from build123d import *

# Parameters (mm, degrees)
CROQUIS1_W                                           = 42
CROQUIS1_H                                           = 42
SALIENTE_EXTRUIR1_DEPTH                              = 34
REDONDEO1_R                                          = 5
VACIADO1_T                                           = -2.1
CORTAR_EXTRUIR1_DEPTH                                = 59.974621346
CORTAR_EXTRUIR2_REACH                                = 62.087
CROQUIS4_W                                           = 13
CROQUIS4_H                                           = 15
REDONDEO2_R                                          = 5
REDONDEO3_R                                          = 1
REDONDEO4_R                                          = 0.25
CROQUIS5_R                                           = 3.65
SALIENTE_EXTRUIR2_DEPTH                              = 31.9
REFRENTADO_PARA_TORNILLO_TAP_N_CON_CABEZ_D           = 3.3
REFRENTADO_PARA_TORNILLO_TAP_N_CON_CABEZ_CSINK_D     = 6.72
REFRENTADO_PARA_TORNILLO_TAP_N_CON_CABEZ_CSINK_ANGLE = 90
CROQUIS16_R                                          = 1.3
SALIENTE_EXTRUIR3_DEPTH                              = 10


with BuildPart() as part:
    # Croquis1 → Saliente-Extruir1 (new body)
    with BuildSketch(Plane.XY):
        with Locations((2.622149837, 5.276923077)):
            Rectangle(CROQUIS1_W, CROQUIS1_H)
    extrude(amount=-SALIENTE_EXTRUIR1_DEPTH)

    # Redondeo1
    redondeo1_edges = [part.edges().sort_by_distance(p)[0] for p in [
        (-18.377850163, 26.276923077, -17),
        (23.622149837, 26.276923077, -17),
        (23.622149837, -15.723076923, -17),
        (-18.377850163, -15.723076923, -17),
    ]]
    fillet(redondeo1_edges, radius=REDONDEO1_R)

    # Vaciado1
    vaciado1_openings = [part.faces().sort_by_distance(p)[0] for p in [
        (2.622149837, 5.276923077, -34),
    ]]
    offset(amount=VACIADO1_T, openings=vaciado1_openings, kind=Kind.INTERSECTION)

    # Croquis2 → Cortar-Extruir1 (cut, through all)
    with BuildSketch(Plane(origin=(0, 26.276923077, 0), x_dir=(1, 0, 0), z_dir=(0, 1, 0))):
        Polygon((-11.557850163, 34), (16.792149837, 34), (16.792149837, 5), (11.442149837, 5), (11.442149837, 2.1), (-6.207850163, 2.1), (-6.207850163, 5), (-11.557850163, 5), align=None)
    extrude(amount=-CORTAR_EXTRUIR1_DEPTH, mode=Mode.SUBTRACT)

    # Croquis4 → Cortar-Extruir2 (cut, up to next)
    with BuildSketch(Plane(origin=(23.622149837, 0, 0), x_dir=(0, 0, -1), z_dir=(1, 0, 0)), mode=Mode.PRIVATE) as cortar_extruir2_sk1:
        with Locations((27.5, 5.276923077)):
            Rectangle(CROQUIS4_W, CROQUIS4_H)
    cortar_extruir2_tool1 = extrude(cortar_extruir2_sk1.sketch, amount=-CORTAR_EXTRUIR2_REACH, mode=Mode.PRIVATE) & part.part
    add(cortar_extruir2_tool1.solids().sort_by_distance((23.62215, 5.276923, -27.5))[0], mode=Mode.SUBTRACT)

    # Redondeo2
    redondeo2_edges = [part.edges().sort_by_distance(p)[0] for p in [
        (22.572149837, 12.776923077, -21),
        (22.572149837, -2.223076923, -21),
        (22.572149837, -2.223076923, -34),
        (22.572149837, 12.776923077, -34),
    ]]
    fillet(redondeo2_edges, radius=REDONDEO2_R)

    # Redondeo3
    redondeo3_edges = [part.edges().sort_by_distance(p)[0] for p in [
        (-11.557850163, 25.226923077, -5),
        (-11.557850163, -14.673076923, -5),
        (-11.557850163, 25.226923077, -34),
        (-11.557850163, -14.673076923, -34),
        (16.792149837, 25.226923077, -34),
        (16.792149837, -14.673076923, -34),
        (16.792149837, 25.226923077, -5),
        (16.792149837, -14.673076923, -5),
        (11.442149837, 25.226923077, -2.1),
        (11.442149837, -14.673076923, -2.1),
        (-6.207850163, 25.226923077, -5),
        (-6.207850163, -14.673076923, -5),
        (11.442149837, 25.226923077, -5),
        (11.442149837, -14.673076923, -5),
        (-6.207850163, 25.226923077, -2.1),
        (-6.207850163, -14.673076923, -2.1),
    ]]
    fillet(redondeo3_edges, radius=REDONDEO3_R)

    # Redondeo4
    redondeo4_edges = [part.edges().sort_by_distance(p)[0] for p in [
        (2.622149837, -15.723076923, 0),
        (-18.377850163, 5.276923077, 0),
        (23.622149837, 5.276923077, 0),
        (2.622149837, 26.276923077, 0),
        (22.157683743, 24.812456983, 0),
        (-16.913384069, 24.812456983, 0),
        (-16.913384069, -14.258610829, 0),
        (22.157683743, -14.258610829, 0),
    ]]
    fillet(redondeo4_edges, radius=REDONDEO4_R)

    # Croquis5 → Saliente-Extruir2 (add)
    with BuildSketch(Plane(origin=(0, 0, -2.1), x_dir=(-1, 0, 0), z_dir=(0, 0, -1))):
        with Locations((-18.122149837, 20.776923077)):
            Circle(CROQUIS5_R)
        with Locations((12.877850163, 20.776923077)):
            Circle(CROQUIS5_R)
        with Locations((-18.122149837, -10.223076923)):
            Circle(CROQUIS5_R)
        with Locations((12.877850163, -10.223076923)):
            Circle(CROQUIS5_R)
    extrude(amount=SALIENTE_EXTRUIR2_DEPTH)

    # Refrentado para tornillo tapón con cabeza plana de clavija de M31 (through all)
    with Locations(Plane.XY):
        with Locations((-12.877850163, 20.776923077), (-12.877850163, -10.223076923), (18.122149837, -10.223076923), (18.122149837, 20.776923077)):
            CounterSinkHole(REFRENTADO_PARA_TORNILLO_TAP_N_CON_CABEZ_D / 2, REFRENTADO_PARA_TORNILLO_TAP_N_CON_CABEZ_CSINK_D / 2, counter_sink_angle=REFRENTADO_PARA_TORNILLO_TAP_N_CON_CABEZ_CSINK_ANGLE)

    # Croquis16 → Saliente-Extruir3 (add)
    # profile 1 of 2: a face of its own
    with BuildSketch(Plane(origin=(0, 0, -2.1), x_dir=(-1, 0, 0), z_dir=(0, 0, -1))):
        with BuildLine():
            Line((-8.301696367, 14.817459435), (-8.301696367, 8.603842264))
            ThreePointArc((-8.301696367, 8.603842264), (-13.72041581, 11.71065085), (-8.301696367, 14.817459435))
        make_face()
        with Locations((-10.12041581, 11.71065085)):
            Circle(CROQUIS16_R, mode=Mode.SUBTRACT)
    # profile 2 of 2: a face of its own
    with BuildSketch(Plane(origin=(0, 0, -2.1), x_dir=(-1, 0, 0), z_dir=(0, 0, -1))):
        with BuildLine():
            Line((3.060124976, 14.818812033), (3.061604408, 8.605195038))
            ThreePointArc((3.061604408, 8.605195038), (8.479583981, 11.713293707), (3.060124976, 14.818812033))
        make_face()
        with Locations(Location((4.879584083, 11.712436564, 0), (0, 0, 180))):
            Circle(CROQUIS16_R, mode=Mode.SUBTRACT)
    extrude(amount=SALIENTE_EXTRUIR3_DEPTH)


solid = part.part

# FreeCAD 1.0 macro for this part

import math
import FreeCAD as App
import Part
import Sketcher

V = App.Vector


def edges_at(feature, points):
    """Names of the edges that pass closest to the given points."""
    edges = feature.Shape.Edges
    near = lambda p: min(range(len(edges)), key=lambda i: edges[i].distToShape(Part.Vertex(*p))[0])
    return sorted({f"Edge{near(p) + 1}" for p in points})


def faces_at(feature, points):
    """Names of the faces that lie closest to the given points."""
    faces = feature.Shape.Faces
    near = lambda p: min(range(len(faces)), key=lambda i: faces[i].distToShape(Part.Vertex(*p))[0])
    return sorted({f"Face{near(p) + 1}" for p in points})


def add_polygon(sketch, points):
    """Adds a closed chain of lines whose ends are joined by coincident constraints."""
    first, n = sketch.GeometryCount, len(points)
    for a, b in zip(points, points[1:] + points[:1]):
        sketch.addGeometry(Part.LineSegment(App.Vector(*a, 0), App.Vector(*b, 0)), False)
    for i in range(n):
        sketch.addConstraint(Sketcher.Constraint("Coincident", first + i, 2, first + (i + 1) % n, 1))

doc = App.newDocument("Part")
body = doc.addObject("PartDesign::Body", "Body")

# Sketch on XY plane
sketch1 = body.newObject("Sketcher::SketchObject", "Sketch")
sketch1.AttachmentSupport = (doc.getObject("XY_Plane"), [""])
sketch1.MapMode = "FlatFace"
add_polygon(sketch1, [(-18.37785, 26.276923), (-18.37785, -15.723077), (23.62215, -15.723077), (23.62215, 26.276923)])  # lines 0-3
sketch1.addConstraint(Sketcher.Constraint("Vertical", 0))
sketch1.addConstraint(Sketcher.Constraint("Horizontal", 1))
sketch1.addConstraint(Sketcher.Constraint("Vertical", 2))
sketch1.addConstraint(Sketcher.Constraint("Horizontal", 3))
sketch1.addConstraint(Sketcher.Constraint("Equal", 3, 0))
sketch1.addConstraint(Sketcher.Constraint("DistanceX", 1, 1, 1, 2, 42.0))
sketch1.addConstraint(Sketcher.Constraint("DistanceX", 0, 2, -1, 1, 18.37785))
sketch1.addConstraint(Sketcher.Constraint("DistanceY", 0, 2, -1, 1, 15.723077))
pad1 = body.newObject("PartDesign::Pad", "Pad")
pad1.Profile = sketch1
pad1.Length = 34
pad1.Reversed = True
doc.recompute()

fillet = body.newObject("PartDesign::Fillet", "Fillet")
fillet.Base = (pad1, edges_at(pad1, [
    (-18.378, 26.277, -17),
    (23.622, 26.277, -17),
    (23.622, -15.723, -17),
    (-18.378, -15.723, -17),
]))
fillet.Radius = 5
doc.recompute()

thickness = body.newObject("PartDesign::Thickness", "Thickness")
thickness.Base = (fillet, faces_at(fillet, [(2.622, 5.277, -34)]))
thickness.Value = 2.1
thickness.Reversed = True
thickness.Join = "Intersection"

# Sketch on XZ plane
sketch2 = body.newObject("Sketcher::SketchObject", "Sketch001")
sketch2.AttachmentSupport = (doc.getObject("XZ_Plane"), [""])
sketch2.MapMode = "FlatFace"
sketch2.AttachmentOffset = App.Placement(V(0, 0, -26.276923), App.Rotation())
add_polygon(sketch2, [(16.79215, -34), (-11.55785, -34), (-11.55785, -5), (-6.20785, -5), (-6.20785, -2.1), (11.44215, -2.1), (11.44215, -5), (16.79215, -5)])  # lines 0-7
sketch2.addConstraint(Sketcher.Constraint("Horizontal", 0))
sketch2.addConstraint(Sketcher.Constraint("Vertical", 1))
sketch2.addConstraint(Sketcher.Constraint("Horizontal", 2))
sketch2.addConstraint(Sketcher.Constraint("Vertical", 3))
sketch2.addConstraint(Sketcher.Constraint("Horizontal", 4))
sketch2.addConstraint(Sketcher.Constraint("Vertical", 5))
sketch2.addConstraint(Sketcher.Constraint("Horizontal", 6))
sketch2.addConstraint(Sketcher.Constraint("Vertical", 7))
sketch2.addConstraint(Sketcher.Constraint("Horizontal", 2, 2, 5, 2))
sketch2.addConstraint(Sketcher.Constraint("Equal", 2, 6))
sketch2.addConstraint(Sketcher.Constraint("DistanceY", 1, 1, 1, 2, 29.0))
sketch2.addConstraint(Sketcher.Constraint("DistanceY", 3, 1, 3, 2, 2.9))
sketch2.addConstraint(Sketcher.Constraint("DistanceY", 0, 2, -1, 1, 34.0))
sketch2.addConstraint(Sketcher.Constraint("DistanceX", 1, 2, 4, 2, 23.0))
sketch2.addConstraint(Sketcher.Constraint("DistanceX", 0, 2, 0, 1, 28.35))
sketch2.addConstraint(Sketcher.Constraint("DistanceX", 0, 2, -1, 1, 11.55785))
pocket1 = body.newObject("PartDesign::Pocket", "Pocket")
pocket1.Profile = sketch2
pocket1.Type = "ThroughAll"
pocket1.Reversed = True

# Sketch on YZ plane
sketch3 = body.newObject("Sketcher::SketchObject", "Sketch002")
sketch3.AttachmentSupport = (doc.getObject("YZ_Plane"), [""])
sketch3.MapMode = "FlatFace"
sketch3.AttachmentOffset = App.Placement(V(0, 0, 23.62215), App.Rotation())
add_polygon(sketch3, [(12.776923, -21), (-2.223077, -21), (-2.223077, -34), (12.776923, -34)])  # lines 0-3
sketch3.addConstraint(Sketcher.Constraint("Horizontal", 0))
sketch3.addConstraint(Sketcher.Constraint("Vertical", 1))
sketch3.addConstraint(Sketcher.Constraint("Horizontal", 2))
sketch3.addConstraint(Sketcher.Constraint("Vertical", 3))
sketch3.addConstraint(Sketcher.Constraint("DistanceX", 0, 2, 0, 1, 15.0))
sketch3.addConstraint(Sketcher.Constraint("DistanceY", 1, 2, 1, 1, 13.0))
sketch3.addConstraint(Sketcher.Constraint("DistanceY", 0, 2, -1, 1, 21.0))
sketch3.addConstraint(Sketcher.Constraint("DistanceX", 0, 2, -1, 1, 2.223077))
pocket2 = body.newObject("PartDesign::Pocket", "Pocket001")
pocket2.Profile = sketch3
pocket2.Type = "UpToFirst"
doc.recompute()

fillet2 = body.newObject("PartDesign::Fillet", "Fillet001")
fillet2.Base = (pocket2, edges_at(pocket2, [
    (22.572, 12.777, -21),
    (22.572, -2.223, -21),
    (22.572, -2.223, -34),
    (22.572, 12.777, -34),
]))
fillet2.Radius = 5
doc.recompute()

fillet3 = body.newObject("PartDesign::Fillet", "Fillet002")
fillet3.Base = (fillet2, edges_at(fillet2, [
    (-11.558, 25.227, -5),
    (-11.558, -14.673, -5),
    (-11.558, 25.227, -34),
    (-11.558, -14.673, -34),
    (16.792, 25.227, -34),
    (16.792, -14.673, -34),
    (16.792, 25.227, -5),
    (16.792, -14.673, -5),
    (11.442, 25.227, -2.1),
    (11.442, -14.673, -2.1),
    (-6.208, 25.227, -5),
    (-6.208, -14.673, -5),
    (11.442, 25.227, -5),
    (11.442, -14.673, -5),
    (-6.208, 25.227, -2.1),
    (-6.208, -14.673, -2.1),
]))
fillet3.Radius = 1
doc.recompute()

fillet4 = body.newObject("PartDesign::Fillet", "Fillet003")
fillet4.Base = (fillet3, edges_at(fillet3, [
    (2.622, -15.723, 0),
    (-18.378, 5.277, 0),
    (23.622, 5.277, 0),
    (2.622, 26.277, 0),
    (22.158, 24.812, 0),
    (-16.913, 24.812, 0),
    (-16.913, -14.259, 0),
    (22.158, -14.259, 0),
]))
fillet4.Radius = 0.25

# Sketch on XY plane
sketch4 = body.newObject("Sketcher::SketchObject", "Sketch003")
sketch4.AttachmentSupport = (doc.getObject("XY_Plane"), [""])
sketch4.MapMode = "FlatFace"
sketch4.AttachmentOffset = App.Placement(V(0, 0, -2.1), App.Rotation())
sketch4.addGeometry(Part.Circle(V(18.12215, 20.776923, 0), V(0, 0, 1), 3.65), False)
sketch4.addGeometry(Part.Circle(V(-12.87785, 20.776923, 0), V(0, 0, 1), 3.65), False)
sketch4.addGeometry(Part.Circle(V(18.12215, -10.223077, 0), V(0, 0, 1), 3.65), False)
sketch4.addGeometry(Part.Circle(V(-12.87785, -10.223077, 0), V(0, 0, 1), 3.65), False)
sketch4.addConstraint(Sketcher.Constraint("Equal", 0, 1))
sketch4.addConstraint(Sketcher.Constraint("Equal", 1, 2))
sketch4.addConstraint(Sketcher.Constraint("Equal", 2, 3))
sketch4.addConstraint(Sketcher.Constraint("Horizontal", 0, 3, 1, 3))
sketch4.addConstraint(Sketcher.Constraint("Horizontal", 2, 3, 3, 3))
sketch4.addConstraint(Sketcher.Constraint("Vertical", 0, 3, 2, 3))
sketch4.addConstraint(Sketcher.Constraint("Vertical", 1, 3, 3, 3))
sketch4.addConstraint(Sketcher.Constraint("Diameter", 0, 7.3))
sketch4.addConstraint(Sketcher.Constraint("DistanceX", 1, 3, 0, 3, 31.0))
sketch4.addConstraint(Sketcher.Constraint("DistanceY", 2, 3, 0, 3, 31.0))
sketch4.addConstraint(Sketcher.Constraint("DistanceX", -1, 1, 0, 3, 18.12215))
sketch4.addConstraint(Sketcher.Constraint("DistanceY", -1, 1, 0, 3, 20.776923))
pad2 = body.newObject("PartDesign::Pad", "Pad001")
pad2.Profile = sketch4
pad2.Length = 31.9
pad2.Reversed = True

# Sketch on XY plane
sketch5 = body.newObject("Sketcher::SketchObject", "Sketch004")
sketch5.AttachmentSupport = (doc.getObject("XY_Plane"), [""])
sketch5.MapMode = "FlatFace"
sketch5.addGeometry(Part.Circle(V(-12.87785, 20.776923, 0), V(0, 0, 1), 1.65), False)
sketch5.addGeometry(Part.Circle(V(-12.87785, -10.223077, 0), V(0, 0, 1), 1.65), False)
sketch5.addGeometry(Part.Circle(V(18.12215, -10.223077, 0), V(0, 0, 1), 1.65), False)
sketch5.addGeometry(Part.Circle(V(18.12215, 20.776923, 0), V(0, 0, 1), 1.65), False)
sketch5.addConstraint(Sketcher.Constraint("Equal", 0, 1))
sketch5.addConstraint(Sketcher.Constraint("Equal", 1, 2))
sketch5.addConstraint(Sketcher.Constraint("Equal", 2, 3))
sketch5.addConstraint(Sketcher.Constraint("Horizontal", 1, 3, 2, 3))
sketch5.addConstraint(Sketcher.Constraint("Horizontal", 0, 3, 3, 3))
sketch5.addConstraint(Sketcher.Constraint("Vertical", 0, 3, 1, 3))
sketch5.addConstraint(Sketcher.Constraint("Vertical", 2, 3, 3, 3))
sketch5.addConstraint(Sketcher.Constraint("Diameter", 0, 3.3))
sketch5.addConstraint(Sketcher.Constraint("DistanceY", 1, 3, 0, 3, 31.0))
sketch5.addConstraint(Sketcher.Constraint("DistanceX", 1, 3, 2, 3, 31.0))
sketch5.addConstraint(Sketcher.Constraint("DistanceX", 0, 3, -1, 1, 12.87785))
sketch5.addConstraint(Sketcher.Constraint("DistanceY", -1, 1, 0, 3, 20.776923))
doc.recompute()
hole = body.newObject("PartDesign::Hole", "Hole")
hole.Profile = sketch5
hole.ThreadType = "None"
hole.Diameter = 3.3
hole.DepthType = "ThroughAll"
hole.HoleCutType = "Countersink"
hole.HoleCutDiameter = 6.72
hole.HoleCutCountersinkAngle = 90

# Sketch on XY plane
sketch6 = body.newObject("Sketcher::SketchObject", "Sketch005")
sketch6.AttachmentSupport = (doc.getObject("XY_Plane"), [""])
sketch6.MapMode = "FlatFace"
sketch6.AttachmentOffset = App.Placement(V(0, 0, -2.1), App.Rotation())
sketch6.addGeometry(Part.LineSegment(V(8.301696, 8.603842, 0), V(8.301696, 14.817459, 0)), False)
sketch6.addGeometry(Part.ArcOfCircle(Part.Circle(V(10.120416, 11.710651, 0), V(0, 0, 1), 3.6), math.radians(-120.344619), math.radians(120.344619)), False)
sketch6.addGeometry(Part.Circle(V(10.120416, 11.710651, 0), V(0, 0, 1), 1.3), False)
sketch6.addGeometry(Part.LineSegment(V(-3.060125, 14.818812, 0), V(-3.061604, 8.605195, 0)), False)
sketch6.addGeometry(Part.ArcOfCircle(Part.Circle(V(-4.879584, 11.712437, 0), V(0, 0, 1), 3.6), math.radians(59.641739), math.radians(300.330978)), False)
sketch6.addGeometry(Part.Circle(V(-4.879584, 11.712437, 0), V(0, 0, 1), 1.3), False)
sketch6.addConstraint(Sketcher.Constraint("Coincident", 0, 1, 1, 1))
sketch6.addConstraint(Sketcher.Constraint("Coincident", 1, 2, 0, 2))
sketch6.addConstraint(Sketcher.Constraint("Coincident", 3, 1, 4, 1))
sketch6.addConstraint(Sketcher.Constraint("Coincident", 4, 2, 3, 2))
sketch6.addConstraint(Sketcher.Constraint("Vertical", 0))
sketch6.addConstraint(Sketcher.Constraint("Coincident", 2, 3, 1, 3))
sketch6.addConstraint(Sketcher.Constraint("Coincident", 5, 3, 4, 3))
sketch6.addConstraint(Sketcher.Constraint("Equal", 1, 4))
sketch6.addConstraint(Sketcher.Constraint("Equal", 2, 5))
sketch6.addConstraint(Sketcher.Constraint("Diameter", 2, 2.6))
sketch6.addConstraint(Sketcher.Constraint("Radius", 1, 3.6))
sketch6.addConstraint(Sketcher.Constraint("DistanceX", 4, 3, 1, 3, 15.0))
sketch6.addConstraint(Sketcher.Constraint("DistanceX", 4, 2, 0, 1, 11.363301))
sketch6.addConstraint(Sketcher.Constraint("DistanceY", 0, 1, 0, 2, 6.213617))
sketch6.addConstraint(Sketcher.Constraint("DistanceY", -1, 1, 1, 3, 11.710651))
sketch6.addConstraint(Sketcher.Constraint("DistanceX", 4, 3, 3, 1, 1.819459))
sketch6.addConstraint(Sketcher.Constraint("DistanceY", 0, 1, 3, 1, 6.21497))
sketch6.addConstraint(Sketcher.Constraint("DistanceX", -1, 1, 1, 3, 10.120416))
pad3 = body.newObject("PartDesign::Pad", "Pad002")
pad3.Profile = sketch6
pad3.Length = 10
pad3.Reversed = True

doc.recompute()
